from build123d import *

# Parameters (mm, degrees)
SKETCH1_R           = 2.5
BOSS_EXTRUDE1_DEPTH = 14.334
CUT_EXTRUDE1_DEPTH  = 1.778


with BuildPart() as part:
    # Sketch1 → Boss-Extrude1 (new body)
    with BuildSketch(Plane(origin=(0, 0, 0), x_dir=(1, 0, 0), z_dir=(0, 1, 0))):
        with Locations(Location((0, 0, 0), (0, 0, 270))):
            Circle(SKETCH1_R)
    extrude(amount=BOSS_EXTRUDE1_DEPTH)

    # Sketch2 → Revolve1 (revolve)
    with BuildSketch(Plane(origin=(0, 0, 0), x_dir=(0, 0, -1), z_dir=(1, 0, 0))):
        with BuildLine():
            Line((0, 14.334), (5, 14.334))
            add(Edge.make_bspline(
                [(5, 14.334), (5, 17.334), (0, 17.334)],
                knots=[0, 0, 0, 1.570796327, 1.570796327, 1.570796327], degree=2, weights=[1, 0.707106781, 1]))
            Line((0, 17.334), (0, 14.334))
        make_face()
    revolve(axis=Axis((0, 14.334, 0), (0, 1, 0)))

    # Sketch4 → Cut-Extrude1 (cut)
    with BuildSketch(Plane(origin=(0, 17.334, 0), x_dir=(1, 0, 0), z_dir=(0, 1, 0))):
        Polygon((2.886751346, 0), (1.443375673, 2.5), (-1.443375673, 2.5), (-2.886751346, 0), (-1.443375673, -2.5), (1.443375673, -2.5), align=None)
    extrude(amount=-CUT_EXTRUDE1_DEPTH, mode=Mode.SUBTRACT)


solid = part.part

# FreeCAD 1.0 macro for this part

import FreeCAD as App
import Part
import Sketcher
from FreeCAD import Vector
Q = App.Units.Quantity


def add_polygon(sketch, points):
    """Adds a closed chain of lines whose ends are joined by coincident constraints."""
    first, n = sketch.GeometryCount, len(points)
    for a, b in zip(points, points[1:] + points[:1]):
        sketch.addGeometry(Part.LineSegment(App.Vector(*a, 0), App.Vector(*b, 0)), False)
    for i in range(n):
        sketch.addConstraint(Sketcher.Constraint("Coincident", first + i, 2, first + (i + 1) % n, 1))

doc = App.newDocument("Part")
body = doc.addObject("PartDesign::Body", "Body")

sketch1 = body.newObject("Sketcher::SketchObject", "Sketch")
sketch1.AttachmentSupport = (doc.getObject("XZ_Plane"), [""])
sketch1.MapMode = "FlatFace"
sketch1.addGeometry(Part.Circle(Vector(0, 0, 0), Vector(0, 0, 1), 2.5), False)
sketch1.addConstraint([
    Sketcher.Constraint("Coincident", 0, 3, -1, 1),
    Sketcher.Constraint("Diameter", 0, Q("5 mm")),
])
pad1 = body.newObject("PartDesign::Pad", "Pad")
pad1.Profile = sketch1
pad1.Length = 14.334
pad1.Reversed = True

sketch2 = body.newObject("Sketcher::SketchObject", "Sketch001")
sketch2.AttachmentSupport = (doc.getObject("YZ_Plane"), [""])
sketch2.MapMode = "FlatFace"
sketch2.addGeometry([
    Part.LineSegment(Vector(14.334, 0, 0), Vector(14.334, -5, 0)),
    Part.BSplineCurve([Vector(14.334, -5, 0), Vector(17.334, -5, 0), Vector(17.334, 0, 0)], [3, 3], [0, 1.570796327], False, 2, [1, 0.707106781, 1], False),
    Part.LineSegment(Vector(17.334, 0, 0), Vector(14.334, 0, 0)),
], False)
sketch2.addConstraint([
    Sketcher.Constraint("Block", 1),
    Sketcher.Constraint("Coincident", 0, 2, 1, 1),
    Sketcher.Constraint("Coincident", 1, 2, 2, 1),
    Sketcher.Constraint("Coincident", 2, 2, 0, 1),
    Sketcher.Constraint("Vertical", 0),
    Sketcher.Constraint("Horizontal", 2),
])
revolution = body.newObject("PartDesign::Revolution", "Revolution")
revolution.Profile = sketch2
revolution.ReferenceAxis = (sketch2, ["H_Axis"])
revolution.Angle = 360

sketch3 = body.newObject("Sketcher::SketchObject", "Sketch002")
sketch3.AttachmentSupport = (doc.getObject("XZ_Plane"), [""])
sketch3.MapMode = "FlatFace"
sketch3.AttachmentOffset = App.Placement(Vector(0, 0, -17.334), App.Rotation())
add_polygon(sketch3, [(2.9, 0), (1.4, -2.5), (-1.4, -2.5), (-2.9, 0), (-1.4, 2.5), (1.4, 2.5)])
sketch3.addConstraint([
    Sketcher.Constraint("Horizontal", 1),
    Sketcher.Constraint("Horizontal", 4),
    Sketcher.Constraint("Symmetric", 0, 2, 3, 2, -1, 1),
    Sketcher.Constraint("Symmetric", 2, 2, 5, 2, -1, 1),
    Sketcher.Constraint("PointOnObject", 2, 2, -1),
    Sketcher.Constraint("Parallel", 2, 5),
    Sketcher.Constraint("Vertical", 1, 2, 3, 2),
    Sketcher.Constraint("Angle", 0, Q("-120 deg")),
    Sketcher.Constraint("DistanceY", 1, 2, 3, 2, Q("5 mm")),
    Sketcher.Constraint("DistanceX", 1, 2, 1, 1, Q("2.886751 mm")),
])
pocket1 = body.newObject("PartDesign::Pocket", "Pocket")
pocket1.Profile = sketch3
pocket1.Length = 1.778
pocket1.Reversed = True

doc.recompute()
